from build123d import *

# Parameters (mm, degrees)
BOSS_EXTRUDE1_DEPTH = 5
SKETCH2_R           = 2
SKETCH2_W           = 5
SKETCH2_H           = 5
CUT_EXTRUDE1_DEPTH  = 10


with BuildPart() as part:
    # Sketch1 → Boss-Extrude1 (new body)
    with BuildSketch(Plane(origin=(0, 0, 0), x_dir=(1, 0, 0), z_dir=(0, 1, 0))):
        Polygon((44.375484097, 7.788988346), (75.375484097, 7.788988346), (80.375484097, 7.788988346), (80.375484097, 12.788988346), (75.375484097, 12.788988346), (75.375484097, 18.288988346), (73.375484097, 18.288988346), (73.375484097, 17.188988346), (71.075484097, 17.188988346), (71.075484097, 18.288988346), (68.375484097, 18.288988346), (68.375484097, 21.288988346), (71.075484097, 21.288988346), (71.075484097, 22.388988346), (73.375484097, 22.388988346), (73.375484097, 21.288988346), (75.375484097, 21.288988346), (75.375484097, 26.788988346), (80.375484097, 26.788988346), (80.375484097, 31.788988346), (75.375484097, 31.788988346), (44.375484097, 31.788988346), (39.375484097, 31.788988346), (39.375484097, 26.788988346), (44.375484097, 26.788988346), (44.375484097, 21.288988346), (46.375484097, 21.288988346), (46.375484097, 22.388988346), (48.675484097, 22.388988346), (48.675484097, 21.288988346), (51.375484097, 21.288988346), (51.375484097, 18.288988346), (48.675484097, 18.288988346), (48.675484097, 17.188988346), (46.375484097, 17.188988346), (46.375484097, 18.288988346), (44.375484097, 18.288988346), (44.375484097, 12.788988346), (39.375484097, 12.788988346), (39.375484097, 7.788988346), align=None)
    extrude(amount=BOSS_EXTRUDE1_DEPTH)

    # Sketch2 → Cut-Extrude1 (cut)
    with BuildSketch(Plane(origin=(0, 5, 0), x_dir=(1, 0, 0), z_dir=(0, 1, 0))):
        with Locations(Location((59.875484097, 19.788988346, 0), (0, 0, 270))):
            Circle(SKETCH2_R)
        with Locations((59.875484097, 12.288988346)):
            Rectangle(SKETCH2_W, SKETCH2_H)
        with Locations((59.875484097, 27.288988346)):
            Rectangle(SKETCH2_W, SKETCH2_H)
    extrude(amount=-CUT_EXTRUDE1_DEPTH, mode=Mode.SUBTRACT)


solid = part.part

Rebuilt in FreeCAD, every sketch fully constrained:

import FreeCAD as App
import Part
import Sketcher
Q = App.Units.Quantity


def add_polygon(sketch, points):
    """Adds a closed chain of lines whose ends are joined by coincident constraints."""
    first, n = sketch.GeometryCount, len(points)
    for a, b in zip(points, points[1:] + points[:1]):
        sketch.addGeometry(Part.LineSegment(App.Vector(*a, 0), App.Vector(*b, 0)), False)
    for i in range(n):
        sketch.addConstraint(Sketcher.Constraint("Coincident", first + i, 2, first + (i + 1) % n, 1))

doc = App.newDocument("Part")
body = doc.addObject("PartDesign::Body", "Body")

sketch1 = doc.addObject("Sketcher::SketchObject", "Sketch")
body.addObject(sketch1)
sketch1.AttachmentSupport = (doc.XZ_Plane, [""])
sketch1.MapMode = "FlatFace"
add_polygon(sketch1, [(80.375484, -7.788988), (80.375484, -12.788988), (75.375484, -12.788988), (75.375484, -18.288988), (73.375484, -18.288988), (73.375484, -17.188988), (71.075484, -17.188988), (71.075484, -18.288988), (68.375484, -18.288988), (68.375484, -21.288988), (71.075484, -21.288988), (71.075484, -22.388988), (73.375484, -22.388988), (73.375484, -21.288988), (75.375484, -21.288988), (75.375484, -26.788988), (80.375484, -26.788988), (80.375484, -31.788988), (39.375484, -31.788988), (39.375484, -26.788988), (44.375484, -26.788988), (44.375484, -21.288988), (46.375484, -21.288988), (46.375484, -22.388988), (48.675484, -22.388988), (48.675484, -21.288988), (51.375484, -21.288988), (51.375484, -18.288988), (48.675484, -18.288988), (48.675484, -17.188988), (46.375484, -17.188988), (46.375484, -18.288988), (44.375484, -18.288988), (44.375484, -12.788988), (39.375484, -12.788988), (39.375484, -7.788988)])
sketch1.addConstraint(Sketcher.Constraint("Vertical", 0))
sketch1.addConstraint(Sketcher.Constraint("Horizontal", 1))
sketch1.addConstraint(Sketcher.Constraint("Vertical", 2))
sketch1.addConstraint(Sketcher.Constraint("Horizontal", 3))
sketch1.addConstraint(Sketcher.Constraint("Vertical", 4))
sketch1.addConstraint(Sketcher.Constraint("Horizontal", 5))
sketch1.addConstraint(Sketcher.Constraint("Vertical", 6))
sketch1.addConstraint(Sketcher.Constraint("Horizontal", 7))
sketch1.addConstraint(Sketcher.Constraint("Vertical", 8))
sketch1.addConstraint(Sketcher.Constraint("Horizontal", 9))
sketch1.addConstraint(Sketcher.Constraint("Vertical", 10))
sketch1.addConstraint(Sketcher.Constraint("Horizontal", 11))
sketch1.addConstraint(Sketcher.Constraint("Vertical", 12))
sketch1.addConstraint(Sketcher.Constraint("Horizontal", 13))
sketch1.addConstraint(Sketcher.Constraint("Vertical", 14))
sketch1.addConstraint(Sketcher.Constraint("Horizontal", 15))
sketch1.addConstraint(Sketcher.Constraint("Vertical", 16))
sketch1.addConstraint(Sketcher.Constraint("Horizontal", 17))
sketch1.addConstraint(Sketcher.Constraint("Vertical", 18))
sketch1.addConstraint(Sketcher.Constraint("Horizontal", 19))
sketch1.addConstraint(Sketcher.Constraint("Vertical", 20))
sketch1.addConstraint(Sketcher.Constraint("Horizontal", 21))
sketch1.addConstraint(Sketcher.Constraint("Vertical", 22))
sketch1.addConstraint(Sketcher.Constraint("Horizontal", 23))
sketch1.addConstraint(Sketcher.Constraint("Vertical", 24))
sketch1.addConstraint(Sketcher.Constraint("Horizontal", 25))
sketch1.addConstraint(Sketcher.Constraint("Vertical", 26))
sketch1.addConstraint(Sketcher.Constraint("Horizontal", 27))
sketch1.addConstraint(Sketcher.Constraint("Vertical", 28))
sketch1.addConstraint(Sketcher.Constraint("Horizontal", 29))
sketch1.addConstraint(Sketcher.Constraint("Vertical", 30))
sketch1.addConstraint(Sketcher.Constraint("Horizontal", 31))
sketch1.addConstraint(Sketcher.Constraint("Vertical", 32))
sketch1.addConstraint(Sketcher.Constraint("Horizontal", 33))
sketch1.addConstraint(Sketcher.Constraint("Vertical", 34))
sketch1.addConstraint(Sketcher.Constraint("Horizontal", 35))
sketch1.addConstraint(Sketcher.Constraint("Horizontal", 3, 2, 6, 2))
sketch1.addConstraint(Sketcher.Constraint("Horizontal", 9, 2, 12, 2))
sketch1.addConstraint(Sketcher.Constraint("Horizontal", 15, 2, 18, 2))
sketch1.addConstraint(Sketcher.Constraint("Horizontal", 13, 2, 20, 2))
sketch1.addConstraint(Sketcher.Constraint("Horizontal", 11, 2, 22, 2))
sketch1.addConstraint(Sketcher.Constraint("Horizontal", 21, 2, 24, 2))
sketch1.addConstraint(Sketcher.Constraint("Horizontal", 7, 2, 26, 2))
sketch1.addConstraint(Sketcher.Constraint("Horizontal", 5, 2, 28, 2))
sketch1.addConstraint(Sketcher.Constraint("Horizontal", 27, 2, 30, 2))
sketch1.addConstraint(Sketcher.Constraint("Horizontal", 1, 2, 32, 2))
sketch1.addConstraint(Sketcher.Constraint("Vertical", 6, 2, 9, 2))
sketch1.addConstraint(Sketcher.Constraint("Vertical", 4, 2, 11, 2))
sketch1.addConstraint(Sketcher.Constraint("Vertical", 2, 2, 13, 2))
sketch1.addConstraint(Sketcher.Constraint("Vertical", 0, 2, 15, 2))
sketch1.addConstraint(Sketcher.Constraint("Vertical", 24, 2, 27, 2))
sketch1.addConstraint(Sketcher.Constraint("Vertical", 22, 2, 29, 2))
sketch1.addConstraint(Sketcher.Constraint("Vertical", 20, 2, 31, 2))
sketch1.addConstraint(Sketcher.Constraint("Vertical", 18, 2, 33, 2))
sketch1.addConstraint(Sketcher.Constraint("Equal", 15, 19))
sketch1.addConstraint(Sketcher.Constraint("Equal", 13, 21))
sketch1.addConstraint(Sketcher.Constraint("Equal", 11, 23))
sketch1.addConstraint(Sketcher.Constraint("Equal", 9, 25))
sketch1.addConstraint(Sketcher.Constraint("Equal", 33, 0))
sketch1.addConstraint(Sketcher.Constraint("Equal", 6, 10))
sketch1.addConstraint(Sketcher.Constraint("Equal", 2, 14))
sketch1.addConstraint(Sketcher.Constraint("Equal", 0, 16))
sketch1.addConstraint(Sketcher.Constraint("DistanceX", 1, 2, 1, 1, Q("5 mm")))
sketch1.addConstraint(Sketcher.Constraint("DistanceX", 3, 2, 3, 1, Q("2 mm")))
sketch1.addConstraint(Sketcher.Constraint("DistanceX", 17, 2, 17, 1, Q("41 mm")))
sketch1.addConstraint(Sketcher.Constraint("DistanceY", 8, 2, 8, 1, Q("3 mm")))
sketch1.addConstraint(Sketcher.Constraint("DistanceX", 5, 2, 5, 1, Q("2.3 mm")))
sketch1.addConstraint(Sketcher.Constraint("DistanceX", 7, 2, 7, 1, Q("2.7 mm")))
sketch1.addConstraint(Sketcher.Constraint("DistanceY", 2, 2, 2, 1, Q("5.5 mm")))
sketch1.addConstraint(Sketcher.Constraint("DistanceY", 4, 1, 4, 2, Q("1.1 mm")))
sketch1.addConstraint(Sketcher.Constraint("DistanceY", 0, 2, -1, 1, Q("12.788988 mm")))
sketch1.addConstraint(Sketcher.Constraint("DistanceX", -1, 1, 0, 2, Q("80.375484 mm")))
pad1 = doc.addObject("PartDesign::Pad", "Pad")
body.addObject(pad1)
pad1.Profile = sketch1
pad1.Length = 5
pad1.Reversed = True

sketch2 = doc.addObject("Sketcher::SketchObject", "Sketch001")
body.addObject(sketch2)
sketch2.AttachmentSupport = (doc.XZ_Plane, [""])
sketch2.MapMode = "FlatFace"
sketch2.AttachmentOffset = App.Placement(App.Vector(0, 0, -5), App.Rotation())
sketch2.addGeometry(Part.Circle(App.Vector(59.875484, -19.788988, 0), App.Vector(0, 0, 1), 2), False)
add_polygon(sketch2, [(57.375484, -14.788988), (57.375484, -9.788988), (62.375484, -9.788988), (62.375484, -14.788988)])
add_polygon(sketch2, [(57.375484, -29.788988), (57.375484, -24.788988), (62.375484, -24.788988), (62.375484, -29.788988)])
sketch2.addConstraint(Sketcher.Constraint("Vertical", 1))
sketch2.addConstraint(Sketcher.Constraint("Horizontal", 2))
sketch2.addConstraint(Sketcher.Constraint("Vertical", 3))
sketch2.addConstraint(Sketcher.Constraint("Horizontal", 4))
sketch2.addConstraint(Sketcher.Constraint("Vertical", 5))
sketch2.addConstraint(Sketcher.Constraint("Horizontal", 6))
sketch2.addConstraint(Sketcher.Constraint("Vertical", 7))
sketch2.addConstraint(Sketcher.Constraint("Horizontal", 8))
sketch2.addConstraint(Sketcher.Constraint("Vertical", 4, 2, 5, 2))
sketch2.addConstraint(Sketcher.Constraint("Vertical", 3, 2, 6, 2))
sketch2.addConstraint(Sketcher.Constraint("Equal", 8, 1))
sketch2.addConstraint(Sketcher.Constraint("Equal", 3, 5))
sketch2.addConstraint(Sketcher.Constraint("Diameter", 0, Q("4 mm")))
sketch2.addConstraint(Sketcher.Constraint("DistanceX", 2, 1, 2, 2, Q("5 mm")))
sketch2.addConstraint(Sketcher.Constraint("DistanceY", 0, 3, 1, 2, Q("10 mm")))
sketch2.addConstraint(Sketcher.Constraint("DistanceY", 5, 2, 0, 3, Q("5 mm")))
sketch2.addConstraint(Sketcher.Constraint("DistanceX", 1, 2, 0, 3, Q("2.5 mm")))
sketch2.addConstraint(Sketcher.Constraint("DistanceY", 0, 3, -1, 1, Q("19.788988 mm")))
sketch2.addConstraint(Sketcher.Constraint("DistanceX", -1, 1, 0, 3, Q("59.875484 mm")))
pocket1 = doc.addObject("PartDesign::Pocket", "Pocket")
body.addObject(pocket1)
pocket1.Profile = sketch2
pocket1.Length = 10
pocket1.Reversed = True

doc.recompute()
